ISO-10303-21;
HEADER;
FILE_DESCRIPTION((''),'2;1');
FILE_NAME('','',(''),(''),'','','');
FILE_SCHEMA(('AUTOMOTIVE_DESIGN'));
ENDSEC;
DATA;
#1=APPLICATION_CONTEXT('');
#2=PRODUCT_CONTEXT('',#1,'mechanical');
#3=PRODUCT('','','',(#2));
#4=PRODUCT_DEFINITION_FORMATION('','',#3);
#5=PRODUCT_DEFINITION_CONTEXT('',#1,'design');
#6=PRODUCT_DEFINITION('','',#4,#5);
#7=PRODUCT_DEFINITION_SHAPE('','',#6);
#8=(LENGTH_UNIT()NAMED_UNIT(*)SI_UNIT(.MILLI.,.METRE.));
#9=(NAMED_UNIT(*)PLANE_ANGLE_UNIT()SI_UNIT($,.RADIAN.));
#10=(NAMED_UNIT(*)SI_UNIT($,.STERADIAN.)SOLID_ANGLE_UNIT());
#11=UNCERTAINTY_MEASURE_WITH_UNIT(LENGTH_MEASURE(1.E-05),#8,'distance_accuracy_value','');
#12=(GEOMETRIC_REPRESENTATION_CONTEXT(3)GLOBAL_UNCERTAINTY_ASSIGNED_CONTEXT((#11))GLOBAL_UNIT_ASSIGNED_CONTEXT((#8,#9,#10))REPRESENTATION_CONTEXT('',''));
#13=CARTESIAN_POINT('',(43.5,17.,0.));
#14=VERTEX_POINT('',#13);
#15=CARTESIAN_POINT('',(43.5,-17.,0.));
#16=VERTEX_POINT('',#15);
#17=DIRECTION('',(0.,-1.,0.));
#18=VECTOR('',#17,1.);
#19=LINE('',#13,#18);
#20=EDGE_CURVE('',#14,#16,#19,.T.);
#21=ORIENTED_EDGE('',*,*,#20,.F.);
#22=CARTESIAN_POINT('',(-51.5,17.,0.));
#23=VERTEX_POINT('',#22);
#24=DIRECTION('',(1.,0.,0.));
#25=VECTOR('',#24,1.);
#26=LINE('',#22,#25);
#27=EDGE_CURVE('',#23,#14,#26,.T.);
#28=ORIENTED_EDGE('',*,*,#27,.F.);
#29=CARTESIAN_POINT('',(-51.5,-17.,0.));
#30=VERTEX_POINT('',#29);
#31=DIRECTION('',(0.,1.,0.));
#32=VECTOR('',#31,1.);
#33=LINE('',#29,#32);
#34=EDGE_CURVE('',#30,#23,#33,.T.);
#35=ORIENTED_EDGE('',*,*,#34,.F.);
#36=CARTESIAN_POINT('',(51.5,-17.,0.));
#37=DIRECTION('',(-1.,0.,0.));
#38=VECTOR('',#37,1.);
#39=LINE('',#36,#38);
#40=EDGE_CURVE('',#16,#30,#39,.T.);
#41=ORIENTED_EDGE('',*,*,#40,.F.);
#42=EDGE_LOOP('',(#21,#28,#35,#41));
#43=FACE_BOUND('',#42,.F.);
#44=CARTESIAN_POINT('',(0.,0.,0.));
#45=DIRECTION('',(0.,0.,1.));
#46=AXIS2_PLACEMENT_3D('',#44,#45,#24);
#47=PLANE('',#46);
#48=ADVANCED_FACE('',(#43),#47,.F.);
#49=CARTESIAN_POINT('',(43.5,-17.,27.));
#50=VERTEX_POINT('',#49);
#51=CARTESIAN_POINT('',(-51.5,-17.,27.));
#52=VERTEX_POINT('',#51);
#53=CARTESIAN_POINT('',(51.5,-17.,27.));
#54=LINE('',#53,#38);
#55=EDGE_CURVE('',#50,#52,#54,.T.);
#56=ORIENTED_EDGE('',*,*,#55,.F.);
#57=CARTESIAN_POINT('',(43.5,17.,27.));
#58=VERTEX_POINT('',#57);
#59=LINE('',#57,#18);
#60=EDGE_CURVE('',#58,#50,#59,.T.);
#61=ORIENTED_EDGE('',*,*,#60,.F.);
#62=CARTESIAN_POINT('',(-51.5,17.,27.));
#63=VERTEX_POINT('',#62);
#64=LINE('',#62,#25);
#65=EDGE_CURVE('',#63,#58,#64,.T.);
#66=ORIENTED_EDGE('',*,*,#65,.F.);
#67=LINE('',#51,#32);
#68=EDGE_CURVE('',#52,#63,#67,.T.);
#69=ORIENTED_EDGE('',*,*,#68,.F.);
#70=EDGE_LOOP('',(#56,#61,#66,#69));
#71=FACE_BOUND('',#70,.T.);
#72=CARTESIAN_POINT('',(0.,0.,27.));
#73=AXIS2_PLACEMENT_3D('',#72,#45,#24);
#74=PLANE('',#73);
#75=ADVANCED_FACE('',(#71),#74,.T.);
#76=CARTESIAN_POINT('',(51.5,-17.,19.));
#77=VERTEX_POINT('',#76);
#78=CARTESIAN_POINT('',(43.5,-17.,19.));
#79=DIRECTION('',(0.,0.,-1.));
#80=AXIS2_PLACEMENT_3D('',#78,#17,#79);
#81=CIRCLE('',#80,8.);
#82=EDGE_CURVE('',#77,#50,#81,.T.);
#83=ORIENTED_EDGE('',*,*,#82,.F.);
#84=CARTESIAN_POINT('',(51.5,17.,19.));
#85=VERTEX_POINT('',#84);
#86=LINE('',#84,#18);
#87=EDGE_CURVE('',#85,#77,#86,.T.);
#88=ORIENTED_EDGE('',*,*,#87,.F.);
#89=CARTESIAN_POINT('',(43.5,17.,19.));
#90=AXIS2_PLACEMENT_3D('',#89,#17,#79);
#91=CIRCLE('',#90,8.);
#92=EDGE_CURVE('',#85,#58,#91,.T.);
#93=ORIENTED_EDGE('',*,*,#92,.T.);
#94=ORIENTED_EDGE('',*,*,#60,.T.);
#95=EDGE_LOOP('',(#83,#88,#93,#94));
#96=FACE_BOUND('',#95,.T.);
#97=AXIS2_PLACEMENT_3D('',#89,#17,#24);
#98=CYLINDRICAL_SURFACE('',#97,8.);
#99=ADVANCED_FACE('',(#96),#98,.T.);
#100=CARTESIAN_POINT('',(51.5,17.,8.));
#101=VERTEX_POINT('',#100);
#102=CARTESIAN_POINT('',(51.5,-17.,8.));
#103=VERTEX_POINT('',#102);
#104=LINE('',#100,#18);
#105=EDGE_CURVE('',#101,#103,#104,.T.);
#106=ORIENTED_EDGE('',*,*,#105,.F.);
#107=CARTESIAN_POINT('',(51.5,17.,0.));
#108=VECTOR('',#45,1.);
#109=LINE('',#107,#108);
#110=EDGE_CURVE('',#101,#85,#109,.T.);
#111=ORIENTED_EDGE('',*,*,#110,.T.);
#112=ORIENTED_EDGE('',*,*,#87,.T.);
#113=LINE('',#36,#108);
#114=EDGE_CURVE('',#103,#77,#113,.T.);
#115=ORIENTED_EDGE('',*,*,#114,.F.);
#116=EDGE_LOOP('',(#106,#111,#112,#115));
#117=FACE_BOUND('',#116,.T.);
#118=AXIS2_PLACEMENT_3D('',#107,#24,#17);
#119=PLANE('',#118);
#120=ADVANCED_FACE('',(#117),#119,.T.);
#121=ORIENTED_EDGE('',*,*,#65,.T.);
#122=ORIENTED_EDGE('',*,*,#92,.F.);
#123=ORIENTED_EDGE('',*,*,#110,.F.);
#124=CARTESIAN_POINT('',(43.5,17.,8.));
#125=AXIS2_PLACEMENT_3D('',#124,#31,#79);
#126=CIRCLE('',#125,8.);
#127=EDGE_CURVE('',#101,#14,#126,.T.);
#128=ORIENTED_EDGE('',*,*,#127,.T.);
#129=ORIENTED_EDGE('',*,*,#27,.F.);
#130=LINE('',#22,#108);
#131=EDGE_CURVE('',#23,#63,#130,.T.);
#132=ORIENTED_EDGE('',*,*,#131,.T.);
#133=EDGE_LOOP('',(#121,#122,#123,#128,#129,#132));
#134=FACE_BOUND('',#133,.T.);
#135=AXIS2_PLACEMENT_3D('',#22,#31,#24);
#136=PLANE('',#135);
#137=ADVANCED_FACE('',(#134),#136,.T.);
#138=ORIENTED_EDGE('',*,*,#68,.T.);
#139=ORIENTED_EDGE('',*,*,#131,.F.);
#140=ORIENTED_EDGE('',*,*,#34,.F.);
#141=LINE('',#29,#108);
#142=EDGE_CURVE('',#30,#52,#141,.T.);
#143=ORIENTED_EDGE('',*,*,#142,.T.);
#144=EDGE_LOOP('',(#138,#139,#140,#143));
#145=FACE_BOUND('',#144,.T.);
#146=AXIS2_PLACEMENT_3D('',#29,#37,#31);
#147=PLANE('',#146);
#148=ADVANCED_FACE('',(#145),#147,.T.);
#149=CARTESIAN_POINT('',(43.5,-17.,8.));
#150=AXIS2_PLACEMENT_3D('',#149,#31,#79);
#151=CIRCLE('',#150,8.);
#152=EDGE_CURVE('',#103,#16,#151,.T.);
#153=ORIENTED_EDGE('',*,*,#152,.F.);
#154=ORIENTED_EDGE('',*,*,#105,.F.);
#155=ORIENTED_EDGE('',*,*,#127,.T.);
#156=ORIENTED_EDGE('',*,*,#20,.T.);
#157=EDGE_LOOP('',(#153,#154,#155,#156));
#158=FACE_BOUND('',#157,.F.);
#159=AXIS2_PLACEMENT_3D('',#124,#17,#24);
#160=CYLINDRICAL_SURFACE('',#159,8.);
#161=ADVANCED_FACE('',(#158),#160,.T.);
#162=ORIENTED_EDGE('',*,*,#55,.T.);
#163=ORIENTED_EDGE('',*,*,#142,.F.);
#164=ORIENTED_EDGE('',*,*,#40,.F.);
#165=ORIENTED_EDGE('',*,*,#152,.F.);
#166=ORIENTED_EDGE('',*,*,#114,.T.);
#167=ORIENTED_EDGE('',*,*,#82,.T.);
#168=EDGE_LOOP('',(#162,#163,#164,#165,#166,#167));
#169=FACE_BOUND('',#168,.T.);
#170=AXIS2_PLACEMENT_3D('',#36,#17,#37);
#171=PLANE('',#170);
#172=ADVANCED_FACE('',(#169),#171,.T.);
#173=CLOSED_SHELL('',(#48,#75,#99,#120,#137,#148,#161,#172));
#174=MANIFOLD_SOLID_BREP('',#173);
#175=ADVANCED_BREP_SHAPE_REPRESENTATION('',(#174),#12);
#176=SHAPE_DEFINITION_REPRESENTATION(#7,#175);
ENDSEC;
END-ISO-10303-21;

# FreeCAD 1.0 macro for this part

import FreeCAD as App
import Part
import Sketcher

V = App.Vector
Q = App.Units.Quantity


def edges_at(feature, points):
    """Names of the edges that pass closest to the given points."""
    edges = feature.Shape.Edges
    near = lambda p: min(range(len(edges)), key=lambda i: edges[i].distToShape(Part.Vertex(*p))[0])
    return sorted({f"Edge{near(p) + 1}" for p in points})

doc = App.newDocument("Part")
body = doc.addObject("PartDesign::Body", "Body")

sketch1 = doc.addObject("Sketcher::SketchObject", "Sketch")
body.addObject(sketch1)
sketch1.AttachmentSupport = (doc.XY_Plane, [""])
sketch1.MapMode = "FlatFace"
sketch1.addGeometry([
    Part.LineSegment(V(-52, -17, 0), V(52, -17, 0)),
    Part.LineSegment(V(52, -17, 0), V(52, 17, 0)),
    Part.LineSegment(V(52, 17, 0), V(-52, 17, 0)),
    Part.LineSegment(V(-52, 17, 0), V(-52, -17, 0)),
], False)
sketch1.addConstraint([
    Sketcher.Constraint("Coincident", 0, 2, 1, 1),
    Sketcher.Constraint("Coincident", 1, 2, 2, 1),
    Sketcher.Constraint("Coincident", 2, 2, 3, 1),
    Sketcher.Constraint("Coincident", 3, 2, 0, 1),
    Sketcher.Constraint("Horizontal", 0),
    Sketcher.Constraint("Vertical", 1),
    Sketcher.Constraint("Horizontal", 2),
    Sketcher.Constraint("Vertical", 3),
    Sketcher.Constraint("Symmetric", 0, 2, 2, 2, -1, 1),
    Sketcher.Constraint("DistanceX", 0, 1, 0, 2, Q("103 mm")),
    Sketcher.Constraint("DistanceY", 1, 1, 1, 2, Q("34 mm")),
])
pad1 = doc.addObject("PartDesign::Pad", "Pad")
body.addObject(pad1)
pad1.Profile = sketch1
pad1.Length = 27
doc.recompute()

fillet = doc.addObject("PartDesign::Fillet", "Fillet")
body.addObject(fillet)
fillet.Base = (pad1, edges_at(pad1, [(51.5, 0, 27), (51.5, 0, 0)]))
fillet.Radius = 8

doc.recompute()
